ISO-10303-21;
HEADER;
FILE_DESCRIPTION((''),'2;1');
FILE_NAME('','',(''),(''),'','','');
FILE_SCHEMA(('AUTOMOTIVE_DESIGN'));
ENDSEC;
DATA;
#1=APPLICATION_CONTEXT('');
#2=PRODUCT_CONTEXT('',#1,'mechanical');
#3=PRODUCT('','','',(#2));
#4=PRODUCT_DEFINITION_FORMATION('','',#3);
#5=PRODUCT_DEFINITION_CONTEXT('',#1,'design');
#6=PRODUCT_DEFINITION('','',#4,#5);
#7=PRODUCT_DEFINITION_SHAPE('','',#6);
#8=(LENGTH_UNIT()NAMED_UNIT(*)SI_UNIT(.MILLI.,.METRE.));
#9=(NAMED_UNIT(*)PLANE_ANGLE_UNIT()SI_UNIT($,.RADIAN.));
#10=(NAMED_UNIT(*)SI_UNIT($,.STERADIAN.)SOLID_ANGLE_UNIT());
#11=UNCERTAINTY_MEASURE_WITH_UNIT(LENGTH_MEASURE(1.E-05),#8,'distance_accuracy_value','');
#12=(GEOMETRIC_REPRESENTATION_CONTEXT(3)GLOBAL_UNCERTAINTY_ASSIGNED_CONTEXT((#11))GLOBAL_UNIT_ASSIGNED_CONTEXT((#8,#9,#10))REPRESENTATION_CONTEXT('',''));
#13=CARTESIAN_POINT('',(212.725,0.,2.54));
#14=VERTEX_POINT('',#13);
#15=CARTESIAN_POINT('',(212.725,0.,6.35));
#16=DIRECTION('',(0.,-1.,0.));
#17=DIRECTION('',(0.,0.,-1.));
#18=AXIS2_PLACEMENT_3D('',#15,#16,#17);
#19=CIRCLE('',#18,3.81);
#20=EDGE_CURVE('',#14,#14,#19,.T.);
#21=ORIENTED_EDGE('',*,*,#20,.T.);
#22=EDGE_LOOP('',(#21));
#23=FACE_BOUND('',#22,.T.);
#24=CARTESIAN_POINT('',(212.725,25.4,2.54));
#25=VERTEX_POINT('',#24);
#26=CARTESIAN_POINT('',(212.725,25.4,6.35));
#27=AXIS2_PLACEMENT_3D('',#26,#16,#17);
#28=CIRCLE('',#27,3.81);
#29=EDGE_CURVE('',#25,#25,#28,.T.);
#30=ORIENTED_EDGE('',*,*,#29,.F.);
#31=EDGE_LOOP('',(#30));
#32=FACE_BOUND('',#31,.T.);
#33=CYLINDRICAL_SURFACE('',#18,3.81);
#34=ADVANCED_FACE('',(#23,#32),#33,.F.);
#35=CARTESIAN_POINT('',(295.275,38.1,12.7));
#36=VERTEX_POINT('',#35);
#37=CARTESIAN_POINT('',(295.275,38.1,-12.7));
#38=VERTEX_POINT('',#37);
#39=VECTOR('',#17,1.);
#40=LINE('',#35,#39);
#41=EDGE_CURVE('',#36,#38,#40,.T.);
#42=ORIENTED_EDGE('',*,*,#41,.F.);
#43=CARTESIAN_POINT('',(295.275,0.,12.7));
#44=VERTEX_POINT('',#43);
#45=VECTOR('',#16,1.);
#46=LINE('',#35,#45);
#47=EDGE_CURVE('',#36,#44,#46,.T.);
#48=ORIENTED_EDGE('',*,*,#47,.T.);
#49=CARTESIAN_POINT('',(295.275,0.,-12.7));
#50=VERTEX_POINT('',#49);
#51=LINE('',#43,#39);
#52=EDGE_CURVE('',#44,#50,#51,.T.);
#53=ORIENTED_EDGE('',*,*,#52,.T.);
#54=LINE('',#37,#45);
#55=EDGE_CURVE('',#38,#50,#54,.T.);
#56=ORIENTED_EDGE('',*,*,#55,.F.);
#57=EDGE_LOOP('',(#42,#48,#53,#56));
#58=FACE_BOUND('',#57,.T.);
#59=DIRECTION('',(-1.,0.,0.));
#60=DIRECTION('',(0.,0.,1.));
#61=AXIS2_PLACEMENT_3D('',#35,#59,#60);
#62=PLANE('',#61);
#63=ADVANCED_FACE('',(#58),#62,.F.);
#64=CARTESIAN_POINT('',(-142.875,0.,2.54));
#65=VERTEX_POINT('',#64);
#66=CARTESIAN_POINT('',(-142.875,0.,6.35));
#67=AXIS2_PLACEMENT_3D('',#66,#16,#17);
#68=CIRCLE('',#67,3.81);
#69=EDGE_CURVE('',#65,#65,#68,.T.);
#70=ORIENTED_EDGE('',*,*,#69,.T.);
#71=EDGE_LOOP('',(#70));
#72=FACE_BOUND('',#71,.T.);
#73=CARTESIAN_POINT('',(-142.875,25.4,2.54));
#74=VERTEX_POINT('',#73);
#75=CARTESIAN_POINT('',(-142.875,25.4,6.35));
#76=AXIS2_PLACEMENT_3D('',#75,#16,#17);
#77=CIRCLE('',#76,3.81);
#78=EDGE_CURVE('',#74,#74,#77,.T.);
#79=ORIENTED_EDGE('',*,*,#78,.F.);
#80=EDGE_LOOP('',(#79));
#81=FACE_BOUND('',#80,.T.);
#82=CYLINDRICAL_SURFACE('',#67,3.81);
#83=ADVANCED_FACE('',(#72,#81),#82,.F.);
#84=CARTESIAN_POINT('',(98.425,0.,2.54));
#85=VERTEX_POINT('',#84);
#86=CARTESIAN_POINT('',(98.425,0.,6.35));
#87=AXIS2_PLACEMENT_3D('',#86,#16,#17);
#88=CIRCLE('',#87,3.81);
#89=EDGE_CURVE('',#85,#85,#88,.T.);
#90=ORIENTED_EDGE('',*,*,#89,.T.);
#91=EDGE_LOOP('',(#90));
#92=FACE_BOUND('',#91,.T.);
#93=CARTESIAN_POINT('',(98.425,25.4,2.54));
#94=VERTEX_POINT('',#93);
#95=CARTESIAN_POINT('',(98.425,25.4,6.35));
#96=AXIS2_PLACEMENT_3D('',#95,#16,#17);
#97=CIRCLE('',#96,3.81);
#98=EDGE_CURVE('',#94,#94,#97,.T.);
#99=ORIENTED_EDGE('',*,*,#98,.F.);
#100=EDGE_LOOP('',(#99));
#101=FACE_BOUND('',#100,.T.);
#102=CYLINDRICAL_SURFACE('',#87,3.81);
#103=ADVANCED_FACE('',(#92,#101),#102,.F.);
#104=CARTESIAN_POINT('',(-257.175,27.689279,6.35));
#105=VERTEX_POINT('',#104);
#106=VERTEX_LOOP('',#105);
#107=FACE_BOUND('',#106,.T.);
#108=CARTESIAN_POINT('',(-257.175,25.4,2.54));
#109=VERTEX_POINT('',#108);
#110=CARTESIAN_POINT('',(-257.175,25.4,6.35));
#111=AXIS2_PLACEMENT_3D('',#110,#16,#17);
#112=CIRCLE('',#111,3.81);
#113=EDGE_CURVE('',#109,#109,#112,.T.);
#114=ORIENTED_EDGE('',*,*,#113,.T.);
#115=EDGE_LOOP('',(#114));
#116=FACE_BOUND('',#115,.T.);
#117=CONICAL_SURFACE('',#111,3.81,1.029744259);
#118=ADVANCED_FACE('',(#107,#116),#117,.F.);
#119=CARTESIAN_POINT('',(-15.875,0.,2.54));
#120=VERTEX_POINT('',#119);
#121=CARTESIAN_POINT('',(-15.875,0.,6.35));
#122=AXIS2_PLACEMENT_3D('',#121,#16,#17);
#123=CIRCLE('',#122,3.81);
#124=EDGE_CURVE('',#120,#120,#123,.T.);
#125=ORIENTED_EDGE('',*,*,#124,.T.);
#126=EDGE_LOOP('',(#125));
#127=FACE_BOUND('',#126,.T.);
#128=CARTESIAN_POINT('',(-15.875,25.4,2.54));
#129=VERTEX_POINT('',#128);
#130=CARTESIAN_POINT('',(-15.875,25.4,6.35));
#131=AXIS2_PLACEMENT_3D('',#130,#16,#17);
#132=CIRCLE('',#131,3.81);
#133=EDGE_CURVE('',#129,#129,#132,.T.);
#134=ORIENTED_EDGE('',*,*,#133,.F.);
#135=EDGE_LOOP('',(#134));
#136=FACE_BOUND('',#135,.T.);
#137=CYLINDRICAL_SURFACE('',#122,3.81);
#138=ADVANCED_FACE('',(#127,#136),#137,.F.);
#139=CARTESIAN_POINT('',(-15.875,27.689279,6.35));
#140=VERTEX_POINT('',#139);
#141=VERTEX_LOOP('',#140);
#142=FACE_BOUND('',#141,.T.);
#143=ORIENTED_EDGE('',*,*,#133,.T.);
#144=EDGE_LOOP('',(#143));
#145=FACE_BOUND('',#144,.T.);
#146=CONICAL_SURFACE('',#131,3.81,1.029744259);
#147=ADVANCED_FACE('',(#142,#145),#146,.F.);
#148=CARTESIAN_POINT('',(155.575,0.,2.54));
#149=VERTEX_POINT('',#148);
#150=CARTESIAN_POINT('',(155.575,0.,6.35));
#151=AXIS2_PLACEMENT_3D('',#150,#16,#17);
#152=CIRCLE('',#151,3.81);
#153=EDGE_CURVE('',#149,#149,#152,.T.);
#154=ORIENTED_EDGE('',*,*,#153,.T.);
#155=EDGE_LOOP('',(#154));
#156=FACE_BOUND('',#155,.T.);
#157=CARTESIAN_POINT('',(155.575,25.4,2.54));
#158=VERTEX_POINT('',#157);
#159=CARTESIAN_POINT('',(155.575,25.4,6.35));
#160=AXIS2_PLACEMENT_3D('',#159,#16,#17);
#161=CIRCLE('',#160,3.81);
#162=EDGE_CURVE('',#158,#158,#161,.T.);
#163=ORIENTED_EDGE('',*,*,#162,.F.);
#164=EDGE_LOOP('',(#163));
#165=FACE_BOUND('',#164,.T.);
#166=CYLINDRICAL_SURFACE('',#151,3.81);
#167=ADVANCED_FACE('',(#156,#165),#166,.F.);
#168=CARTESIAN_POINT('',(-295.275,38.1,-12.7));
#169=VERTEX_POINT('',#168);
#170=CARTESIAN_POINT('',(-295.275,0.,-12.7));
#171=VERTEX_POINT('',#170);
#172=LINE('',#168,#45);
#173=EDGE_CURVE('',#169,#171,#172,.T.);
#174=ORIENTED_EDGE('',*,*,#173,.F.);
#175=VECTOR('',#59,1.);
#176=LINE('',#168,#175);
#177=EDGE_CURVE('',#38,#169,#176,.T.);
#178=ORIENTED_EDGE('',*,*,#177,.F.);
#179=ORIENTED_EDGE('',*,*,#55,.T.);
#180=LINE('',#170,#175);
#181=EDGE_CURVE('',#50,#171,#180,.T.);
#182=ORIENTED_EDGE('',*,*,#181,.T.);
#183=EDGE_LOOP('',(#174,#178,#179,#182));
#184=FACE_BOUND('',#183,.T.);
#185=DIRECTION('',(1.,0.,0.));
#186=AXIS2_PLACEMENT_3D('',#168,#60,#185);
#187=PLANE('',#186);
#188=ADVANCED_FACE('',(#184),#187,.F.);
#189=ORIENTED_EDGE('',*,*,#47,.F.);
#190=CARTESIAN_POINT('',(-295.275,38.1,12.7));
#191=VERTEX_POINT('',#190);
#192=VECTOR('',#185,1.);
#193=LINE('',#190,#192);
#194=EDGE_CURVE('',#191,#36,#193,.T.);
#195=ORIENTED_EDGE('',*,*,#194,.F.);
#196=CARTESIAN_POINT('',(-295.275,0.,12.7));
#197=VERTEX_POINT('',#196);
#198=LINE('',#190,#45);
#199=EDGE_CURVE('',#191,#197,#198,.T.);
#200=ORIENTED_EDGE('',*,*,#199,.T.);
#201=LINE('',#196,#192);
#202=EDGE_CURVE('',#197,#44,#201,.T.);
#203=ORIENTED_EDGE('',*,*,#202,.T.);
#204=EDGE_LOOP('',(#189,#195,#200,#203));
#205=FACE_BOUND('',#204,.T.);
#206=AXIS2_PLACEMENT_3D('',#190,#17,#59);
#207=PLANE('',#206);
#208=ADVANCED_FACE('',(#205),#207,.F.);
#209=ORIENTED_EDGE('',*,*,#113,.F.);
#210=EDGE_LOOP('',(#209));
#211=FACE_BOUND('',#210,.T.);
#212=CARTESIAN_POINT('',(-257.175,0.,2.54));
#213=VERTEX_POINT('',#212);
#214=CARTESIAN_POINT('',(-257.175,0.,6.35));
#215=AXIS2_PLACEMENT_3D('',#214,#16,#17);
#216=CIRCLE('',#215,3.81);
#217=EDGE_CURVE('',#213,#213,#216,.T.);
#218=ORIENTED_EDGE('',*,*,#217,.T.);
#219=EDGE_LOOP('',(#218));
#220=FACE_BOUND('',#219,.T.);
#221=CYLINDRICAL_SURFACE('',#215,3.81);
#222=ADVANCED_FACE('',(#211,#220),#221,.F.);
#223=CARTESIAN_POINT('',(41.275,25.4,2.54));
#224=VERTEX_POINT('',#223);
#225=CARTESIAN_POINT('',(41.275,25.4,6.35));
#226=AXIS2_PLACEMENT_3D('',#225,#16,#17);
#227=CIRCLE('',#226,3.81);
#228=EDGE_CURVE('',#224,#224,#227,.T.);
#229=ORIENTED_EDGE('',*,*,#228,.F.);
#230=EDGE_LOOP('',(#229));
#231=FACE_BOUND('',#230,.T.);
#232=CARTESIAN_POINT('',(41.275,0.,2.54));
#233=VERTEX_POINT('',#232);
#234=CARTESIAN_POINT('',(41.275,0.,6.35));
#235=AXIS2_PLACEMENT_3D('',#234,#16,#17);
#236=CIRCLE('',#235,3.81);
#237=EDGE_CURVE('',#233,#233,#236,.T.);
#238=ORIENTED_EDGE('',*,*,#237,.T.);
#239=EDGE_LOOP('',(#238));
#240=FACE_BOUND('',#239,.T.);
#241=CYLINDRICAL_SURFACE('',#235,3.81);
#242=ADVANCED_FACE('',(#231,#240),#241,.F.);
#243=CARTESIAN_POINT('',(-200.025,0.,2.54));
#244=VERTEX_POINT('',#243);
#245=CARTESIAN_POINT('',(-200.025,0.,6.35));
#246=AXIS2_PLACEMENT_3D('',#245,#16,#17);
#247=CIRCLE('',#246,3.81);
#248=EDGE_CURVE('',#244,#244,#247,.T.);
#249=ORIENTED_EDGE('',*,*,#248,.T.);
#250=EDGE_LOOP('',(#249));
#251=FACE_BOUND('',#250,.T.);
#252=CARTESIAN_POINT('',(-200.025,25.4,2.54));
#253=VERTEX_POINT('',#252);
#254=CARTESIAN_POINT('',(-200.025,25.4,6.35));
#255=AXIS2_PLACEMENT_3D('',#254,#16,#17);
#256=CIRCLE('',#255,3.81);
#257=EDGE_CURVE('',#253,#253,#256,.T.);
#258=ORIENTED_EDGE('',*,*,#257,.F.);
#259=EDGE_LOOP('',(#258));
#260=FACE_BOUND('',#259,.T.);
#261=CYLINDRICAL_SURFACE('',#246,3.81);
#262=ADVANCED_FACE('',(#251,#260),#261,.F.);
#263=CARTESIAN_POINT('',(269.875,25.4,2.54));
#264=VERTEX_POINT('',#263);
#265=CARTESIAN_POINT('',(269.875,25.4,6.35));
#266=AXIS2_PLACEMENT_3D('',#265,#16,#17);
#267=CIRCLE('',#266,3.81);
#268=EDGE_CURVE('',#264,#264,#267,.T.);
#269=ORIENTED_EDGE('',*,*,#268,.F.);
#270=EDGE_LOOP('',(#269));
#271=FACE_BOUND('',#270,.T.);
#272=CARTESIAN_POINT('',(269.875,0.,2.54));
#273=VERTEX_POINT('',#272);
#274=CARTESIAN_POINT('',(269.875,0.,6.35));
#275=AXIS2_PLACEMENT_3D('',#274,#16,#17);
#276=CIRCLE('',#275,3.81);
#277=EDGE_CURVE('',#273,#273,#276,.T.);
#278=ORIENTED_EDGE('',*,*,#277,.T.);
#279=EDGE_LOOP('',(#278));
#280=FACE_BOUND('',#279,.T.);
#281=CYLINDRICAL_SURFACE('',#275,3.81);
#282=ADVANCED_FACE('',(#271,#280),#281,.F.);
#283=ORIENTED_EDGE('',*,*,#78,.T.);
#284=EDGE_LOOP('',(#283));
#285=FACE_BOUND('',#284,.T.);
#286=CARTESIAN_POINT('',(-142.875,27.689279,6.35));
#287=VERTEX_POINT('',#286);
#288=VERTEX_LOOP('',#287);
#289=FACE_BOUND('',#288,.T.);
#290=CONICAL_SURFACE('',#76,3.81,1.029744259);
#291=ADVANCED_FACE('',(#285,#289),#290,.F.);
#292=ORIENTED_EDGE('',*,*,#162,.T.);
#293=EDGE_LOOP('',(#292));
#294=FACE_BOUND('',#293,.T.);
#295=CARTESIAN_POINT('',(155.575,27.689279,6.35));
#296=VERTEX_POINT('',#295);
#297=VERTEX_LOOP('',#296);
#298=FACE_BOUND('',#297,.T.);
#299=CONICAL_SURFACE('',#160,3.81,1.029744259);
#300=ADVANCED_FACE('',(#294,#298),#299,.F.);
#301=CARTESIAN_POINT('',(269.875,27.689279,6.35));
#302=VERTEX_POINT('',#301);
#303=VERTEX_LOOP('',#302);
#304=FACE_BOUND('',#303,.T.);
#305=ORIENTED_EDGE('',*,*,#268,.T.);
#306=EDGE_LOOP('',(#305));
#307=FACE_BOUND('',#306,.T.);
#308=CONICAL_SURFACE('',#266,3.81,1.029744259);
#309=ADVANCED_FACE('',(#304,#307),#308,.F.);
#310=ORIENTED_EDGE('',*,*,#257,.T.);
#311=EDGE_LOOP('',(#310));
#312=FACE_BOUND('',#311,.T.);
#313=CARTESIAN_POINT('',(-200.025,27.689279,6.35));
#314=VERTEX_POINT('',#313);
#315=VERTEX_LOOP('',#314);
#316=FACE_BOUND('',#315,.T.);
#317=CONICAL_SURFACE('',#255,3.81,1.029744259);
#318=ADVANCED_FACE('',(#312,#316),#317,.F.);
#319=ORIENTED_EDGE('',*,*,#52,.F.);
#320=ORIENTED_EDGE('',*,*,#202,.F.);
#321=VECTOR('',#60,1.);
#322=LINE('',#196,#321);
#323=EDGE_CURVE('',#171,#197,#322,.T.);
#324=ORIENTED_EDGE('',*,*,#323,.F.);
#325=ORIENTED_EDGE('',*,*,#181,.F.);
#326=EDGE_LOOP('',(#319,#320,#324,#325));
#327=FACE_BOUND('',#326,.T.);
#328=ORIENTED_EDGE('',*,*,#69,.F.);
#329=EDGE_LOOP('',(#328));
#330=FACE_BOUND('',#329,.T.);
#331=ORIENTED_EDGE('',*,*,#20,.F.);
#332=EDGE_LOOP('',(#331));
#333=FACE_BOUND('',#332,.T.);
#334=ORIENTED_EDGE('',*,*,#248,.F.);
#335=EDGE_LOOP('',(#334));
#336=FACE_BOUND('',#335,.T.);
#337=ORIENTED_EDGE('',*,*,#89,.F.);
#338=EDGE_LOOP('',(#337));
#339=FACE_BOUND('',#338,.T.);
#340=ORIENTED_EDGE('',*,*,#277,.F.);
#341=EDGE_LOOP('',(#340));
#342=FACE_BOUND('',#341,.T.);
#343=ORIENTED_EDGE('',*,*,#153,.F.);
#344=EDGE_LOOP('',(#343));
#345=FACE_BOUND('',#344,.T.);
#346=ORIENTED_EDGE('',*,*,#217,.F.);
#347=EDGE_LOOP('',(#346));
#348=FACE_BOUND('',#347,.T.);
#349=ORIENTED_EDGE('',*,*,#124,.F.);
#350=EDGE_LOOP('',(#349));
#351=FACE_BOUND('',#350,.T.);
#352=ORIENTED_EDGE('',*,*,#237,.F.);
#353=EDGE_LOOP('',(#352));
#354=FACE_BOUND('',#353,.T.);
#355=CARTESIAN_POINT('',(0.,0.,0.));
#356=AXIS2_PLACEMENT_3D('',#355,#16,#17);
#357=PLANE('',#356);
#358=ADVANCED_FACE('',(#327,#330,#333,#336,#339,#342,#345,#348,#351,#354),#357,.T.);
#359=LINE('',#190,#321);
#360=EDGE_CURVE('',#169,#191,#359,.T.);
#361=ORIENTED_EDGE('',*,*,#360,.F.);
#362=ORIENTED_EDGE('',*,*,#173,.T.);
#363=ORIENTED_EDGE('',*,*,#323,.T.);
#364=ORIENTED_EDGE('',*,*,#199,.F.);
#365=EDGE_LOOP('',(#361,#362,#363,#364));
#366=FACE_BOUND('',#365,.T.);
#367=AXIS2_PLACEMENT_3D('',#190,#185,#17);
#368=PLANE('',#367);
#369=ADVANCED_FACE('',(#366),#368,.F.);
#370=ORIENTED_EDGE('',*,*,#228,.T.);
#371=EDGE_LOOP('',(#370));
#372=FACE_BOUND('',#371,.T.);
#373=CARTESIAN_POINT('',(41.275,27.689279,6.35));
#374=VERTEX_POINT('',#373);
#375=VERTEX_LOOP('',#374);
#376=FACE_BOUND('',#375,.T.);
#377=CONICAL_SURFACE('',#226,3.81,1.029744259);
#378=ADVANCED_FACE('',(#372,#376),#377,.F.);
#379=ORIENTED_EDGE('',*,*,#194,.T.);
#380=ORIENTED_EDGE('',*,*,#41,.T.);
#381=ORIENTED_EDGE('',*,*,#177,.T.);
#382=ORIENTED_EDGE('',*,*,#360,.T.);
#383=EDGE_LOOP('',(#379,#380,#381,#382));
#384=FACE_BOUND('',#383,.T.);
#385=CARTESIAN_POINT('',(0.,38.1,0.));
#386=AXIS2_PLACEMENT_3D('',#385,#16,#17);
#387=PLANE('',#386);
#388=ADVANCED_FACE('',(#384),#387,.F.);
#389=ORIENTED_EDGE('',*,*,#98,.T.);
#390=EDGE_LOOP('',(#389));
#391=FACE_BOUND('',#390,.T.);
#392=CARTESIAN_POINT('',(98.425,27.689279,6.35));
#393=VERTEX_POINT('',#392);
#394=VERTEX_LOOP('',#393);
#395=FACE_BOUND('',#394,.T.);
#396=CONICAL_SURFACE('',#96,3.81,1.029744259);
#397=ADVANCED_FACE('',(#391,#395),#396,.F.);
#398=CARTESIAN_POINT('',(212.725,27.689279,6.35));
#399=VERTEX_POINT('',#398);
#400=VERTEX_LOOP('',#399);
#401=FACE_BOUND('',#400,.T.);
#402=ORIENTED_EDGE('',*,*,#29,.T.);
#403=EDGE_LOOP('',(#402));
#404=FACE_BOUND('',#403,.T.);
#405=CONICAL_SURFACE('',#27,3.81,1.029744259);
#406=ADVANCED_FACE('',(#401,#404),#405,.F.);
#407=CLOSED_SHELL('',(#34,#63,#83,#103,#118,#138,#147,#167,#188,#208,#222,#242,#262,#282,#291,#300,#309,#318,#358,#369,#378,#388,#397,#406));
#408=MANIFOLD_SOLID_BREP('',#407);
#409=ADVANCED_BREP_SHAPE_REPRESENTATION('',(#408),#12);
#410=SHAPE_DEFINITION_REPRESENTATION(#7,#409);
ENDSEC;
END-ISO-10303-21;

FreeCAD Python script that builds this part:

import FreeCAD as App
import Part
import Sketcher
Q = App.Units.Quantity


def add_polygon(sketch, points):
    """Adds a closed chain of lines whose ends are joined by coincident constraints."""
    first, n = sketch.GeometryCount, len(points)
    for a, b in zip(points, points[1:] + points[:1]):
        sketch.addGeometry(Part.LineSegment(App.Vector(*a, 0), App.Vector(*b, 0)), False)
    for i in range(n):
        sketch.addConstraint(Sketcher.Constraint("Coincident", first + i, 2, first + (i + 1) % n, 1))

doc = App.newDocument("Part")
body = doc.addObject("PartDesign::Body", "Body")

sketch1 = doc.addObject("Sketcher::SketchObject", "Sketch")
body.addObject(sketch1)
sketch1.AttachmentSupport = (doc.XZ_Plane, [""])
sketch1.MapMode = "FlatFace"
add_polygon(sketch1, [(-295, -13), (-295, 13), (295, 13), (295, -13)])
sketch1.addConstraint(Sketcher.Constraint("Vertical", 0))
sketch1.addConstraint(Sketcher.Constraint("Horizontal", 1))
sketch1.addConstraint(Sketcher.Constraint("Vertical", 2))
sketch1.addConstraint(Sketcher.Constraint("Horizontal", 3))
sketch1.addConstraint(Sketcher.Constraint("Symmetric", 0, 2, 2, 2, -1, 1))
sketch1.addConstraint(Sketcher.Constraint("DistanceY", 0, 1, 0, 2, Q("1 in")))
sketch1.addConstraint(Sketcher.Constraint("DistanceX", 1, 1, 1, 2, Q("23.25 in")))
pad1 = doc.addObject("PartDesign::Pad", "Pad")
body.addObject(pad1)
pad1.Profile = sketch1
pad1.Length = Q("1.5 in")
pad1.Reversed = True

sketch2 = doc.addObject("Sketcher::SketchObject", "Sketch001")
body.addObject(sketch2)
sketch2.AttachmentSupport = (doc.XZ_Plane, [""])
sketch2.MapMode = "FlatFace"
sketch2.addGeometry(Part.Circle(App.Vector(269.9, 6.3, 0), App.Vector(0, 0, 1), 3.8), False)
sketch2.addGeometry(Part.Circle(App.Vector(212.7, 6.3, 0), App.Vector(0, 0, 1), 3.8), False)
sketch2.addGeometry(Part.Circle(App.Vector(155.6, 6.3, 0), App.Vector(0, 0, 1), 3.8), False)
sketch2.addGeometry(Part.Circle(App.Vector(-142.9, 6.3, 0), App.Vector(0, 0, 1), 3.8), False)
sketch2.addGeometry(Part.Circle(App.Vector(98.4, 6.3, 0), App.Vector(0, 0, 1), 3.8), False)
sketch2.addGeometry(Part.Circle(App.Vector(41.3, 6.3, 0), App.Vector(0, 0, 1), 3.8), False)
sketch2.addGeometry(Part.Circle(App.Vector(-15.9, 6.3, 0), App.Vector(0, 0, 1), 3.8), False)
sketch2.addGeometry(Part.Circle(App.Vector(-200, 6.3, 0), App.Vector(0, 0, 1), 3.8), False)
sketch2.addGeometry(Part.Circle(App.Vector(-257.2, 6.3, 0), App.Vector(0, 0, 1), 3.8), False)
sketch2.addConstraint(Sketcher.Constraint("Equal", 0, 1))
sketch2.addConstraint(Sketcher.Constraint("Equal", 1, 2))
sketch2.addConstraint(Sketcher.Constraint("Equal", 2, 3))
sketch2.addConstraint(Sketcher.Constraint("Equal", 3, 4))
sketch2.addConstraint(Sketcher.Constraint("Equal", 4, 5))
sketch2.addConstraint(Sketcher.Constraint("Equal", 5, 6))
sketch2.addConstraint(Sketcher.Constraint("Equal", 6, 7))
sketch2.addConstraint(Sketcher.Constraint("Equal", 7, 8))
sketch2.addConstraint(Sketcher.Constraint("Horizontal", 0, 3, 1, 3))
sketch2.addConstraint(Sketcher.Constraint("Horizontal", 1, 3, 2, 3))
sketch2.addConstraint(Sketcher.Constraint("Horizontal", 2, 3, 3, 3))
sketch2.addConstraint(Sketcher.Constraint("Horizontal", 3, 3, 4, 3))
sketch2.addConstraint(Sketcher.Constraint("Horizontal", 4, 3, 5, 3))
sketch2.addConstraint(Sketcher.Constraint("Horizontal", 5, 3, 6, 3))
sketch2.addConstraint(Sketcher.Constraint("Horizontal", 6, 3, 7, 3))
sketch2.addConstraint(Sketcher.Constraint("Horizontal", 7, 3, 8, 3))
sketch2.addConstraint(Sketcher.Constraint("Diameter", 0, Q("0.3 in")))
sketch2.addConstraint(Sketcher.Constraint("DistanceX", 3, 3, 1, 3, Q("14 in")))
sketch2.addConstraint(Sketcher.Constraint("DistanceX", 5, 3, 0, 3, Q("9 in")))
sketch2.addConstraint(Sketcher.Constraint("DistanceX", 3, 3, 6, 3, Q("5 in")))
sketch2.addConstraint(Sketcher.Constraint("DistanceX", 7, 3, 2, 3, Q("14 in")))
sketch2.addConstraint(Sketcher.Constraint("DistanceX", 8, 3, 4, 3, Q("14 in")))
sketch2.addConstraint(Sketcher.Constraint("DistanceX", 2, 3, 0, 3, Q("4.5 in")))
sketch2.addConstraint(Sketcher.Constraint("DistanceX", 4, 3, 1, 3, Q("4.5 in")))
sketch2.addConstraint(Sketcher.Constraint("DistanceY", -1, 1, 0, 3, Q("0.25 in")))
sketch2.addConstraint(Sketcher.Constraint("DistanceX", 1, 3, 0, 3, Q("2.25 in")))
sketch2.addConstraint(Sketcher.Constraint("DistanceX", -1, 1, 0, 3, Q("10.625 in")))
doc.recompute()
hole = doc.addObject("PartDesign::Hole", "Hole")
body.addObject(hole)
hole.Profile = sketch2
hole.ThreadType = "None"
hole.Diameter = Q("0.3 in")
hole.DepthType = "Dimension"
hole.Depth = Q("1 in")
hole.DrillPoint = "Angled"
hole.DrillPointAngle = 118

doc.recompute()
